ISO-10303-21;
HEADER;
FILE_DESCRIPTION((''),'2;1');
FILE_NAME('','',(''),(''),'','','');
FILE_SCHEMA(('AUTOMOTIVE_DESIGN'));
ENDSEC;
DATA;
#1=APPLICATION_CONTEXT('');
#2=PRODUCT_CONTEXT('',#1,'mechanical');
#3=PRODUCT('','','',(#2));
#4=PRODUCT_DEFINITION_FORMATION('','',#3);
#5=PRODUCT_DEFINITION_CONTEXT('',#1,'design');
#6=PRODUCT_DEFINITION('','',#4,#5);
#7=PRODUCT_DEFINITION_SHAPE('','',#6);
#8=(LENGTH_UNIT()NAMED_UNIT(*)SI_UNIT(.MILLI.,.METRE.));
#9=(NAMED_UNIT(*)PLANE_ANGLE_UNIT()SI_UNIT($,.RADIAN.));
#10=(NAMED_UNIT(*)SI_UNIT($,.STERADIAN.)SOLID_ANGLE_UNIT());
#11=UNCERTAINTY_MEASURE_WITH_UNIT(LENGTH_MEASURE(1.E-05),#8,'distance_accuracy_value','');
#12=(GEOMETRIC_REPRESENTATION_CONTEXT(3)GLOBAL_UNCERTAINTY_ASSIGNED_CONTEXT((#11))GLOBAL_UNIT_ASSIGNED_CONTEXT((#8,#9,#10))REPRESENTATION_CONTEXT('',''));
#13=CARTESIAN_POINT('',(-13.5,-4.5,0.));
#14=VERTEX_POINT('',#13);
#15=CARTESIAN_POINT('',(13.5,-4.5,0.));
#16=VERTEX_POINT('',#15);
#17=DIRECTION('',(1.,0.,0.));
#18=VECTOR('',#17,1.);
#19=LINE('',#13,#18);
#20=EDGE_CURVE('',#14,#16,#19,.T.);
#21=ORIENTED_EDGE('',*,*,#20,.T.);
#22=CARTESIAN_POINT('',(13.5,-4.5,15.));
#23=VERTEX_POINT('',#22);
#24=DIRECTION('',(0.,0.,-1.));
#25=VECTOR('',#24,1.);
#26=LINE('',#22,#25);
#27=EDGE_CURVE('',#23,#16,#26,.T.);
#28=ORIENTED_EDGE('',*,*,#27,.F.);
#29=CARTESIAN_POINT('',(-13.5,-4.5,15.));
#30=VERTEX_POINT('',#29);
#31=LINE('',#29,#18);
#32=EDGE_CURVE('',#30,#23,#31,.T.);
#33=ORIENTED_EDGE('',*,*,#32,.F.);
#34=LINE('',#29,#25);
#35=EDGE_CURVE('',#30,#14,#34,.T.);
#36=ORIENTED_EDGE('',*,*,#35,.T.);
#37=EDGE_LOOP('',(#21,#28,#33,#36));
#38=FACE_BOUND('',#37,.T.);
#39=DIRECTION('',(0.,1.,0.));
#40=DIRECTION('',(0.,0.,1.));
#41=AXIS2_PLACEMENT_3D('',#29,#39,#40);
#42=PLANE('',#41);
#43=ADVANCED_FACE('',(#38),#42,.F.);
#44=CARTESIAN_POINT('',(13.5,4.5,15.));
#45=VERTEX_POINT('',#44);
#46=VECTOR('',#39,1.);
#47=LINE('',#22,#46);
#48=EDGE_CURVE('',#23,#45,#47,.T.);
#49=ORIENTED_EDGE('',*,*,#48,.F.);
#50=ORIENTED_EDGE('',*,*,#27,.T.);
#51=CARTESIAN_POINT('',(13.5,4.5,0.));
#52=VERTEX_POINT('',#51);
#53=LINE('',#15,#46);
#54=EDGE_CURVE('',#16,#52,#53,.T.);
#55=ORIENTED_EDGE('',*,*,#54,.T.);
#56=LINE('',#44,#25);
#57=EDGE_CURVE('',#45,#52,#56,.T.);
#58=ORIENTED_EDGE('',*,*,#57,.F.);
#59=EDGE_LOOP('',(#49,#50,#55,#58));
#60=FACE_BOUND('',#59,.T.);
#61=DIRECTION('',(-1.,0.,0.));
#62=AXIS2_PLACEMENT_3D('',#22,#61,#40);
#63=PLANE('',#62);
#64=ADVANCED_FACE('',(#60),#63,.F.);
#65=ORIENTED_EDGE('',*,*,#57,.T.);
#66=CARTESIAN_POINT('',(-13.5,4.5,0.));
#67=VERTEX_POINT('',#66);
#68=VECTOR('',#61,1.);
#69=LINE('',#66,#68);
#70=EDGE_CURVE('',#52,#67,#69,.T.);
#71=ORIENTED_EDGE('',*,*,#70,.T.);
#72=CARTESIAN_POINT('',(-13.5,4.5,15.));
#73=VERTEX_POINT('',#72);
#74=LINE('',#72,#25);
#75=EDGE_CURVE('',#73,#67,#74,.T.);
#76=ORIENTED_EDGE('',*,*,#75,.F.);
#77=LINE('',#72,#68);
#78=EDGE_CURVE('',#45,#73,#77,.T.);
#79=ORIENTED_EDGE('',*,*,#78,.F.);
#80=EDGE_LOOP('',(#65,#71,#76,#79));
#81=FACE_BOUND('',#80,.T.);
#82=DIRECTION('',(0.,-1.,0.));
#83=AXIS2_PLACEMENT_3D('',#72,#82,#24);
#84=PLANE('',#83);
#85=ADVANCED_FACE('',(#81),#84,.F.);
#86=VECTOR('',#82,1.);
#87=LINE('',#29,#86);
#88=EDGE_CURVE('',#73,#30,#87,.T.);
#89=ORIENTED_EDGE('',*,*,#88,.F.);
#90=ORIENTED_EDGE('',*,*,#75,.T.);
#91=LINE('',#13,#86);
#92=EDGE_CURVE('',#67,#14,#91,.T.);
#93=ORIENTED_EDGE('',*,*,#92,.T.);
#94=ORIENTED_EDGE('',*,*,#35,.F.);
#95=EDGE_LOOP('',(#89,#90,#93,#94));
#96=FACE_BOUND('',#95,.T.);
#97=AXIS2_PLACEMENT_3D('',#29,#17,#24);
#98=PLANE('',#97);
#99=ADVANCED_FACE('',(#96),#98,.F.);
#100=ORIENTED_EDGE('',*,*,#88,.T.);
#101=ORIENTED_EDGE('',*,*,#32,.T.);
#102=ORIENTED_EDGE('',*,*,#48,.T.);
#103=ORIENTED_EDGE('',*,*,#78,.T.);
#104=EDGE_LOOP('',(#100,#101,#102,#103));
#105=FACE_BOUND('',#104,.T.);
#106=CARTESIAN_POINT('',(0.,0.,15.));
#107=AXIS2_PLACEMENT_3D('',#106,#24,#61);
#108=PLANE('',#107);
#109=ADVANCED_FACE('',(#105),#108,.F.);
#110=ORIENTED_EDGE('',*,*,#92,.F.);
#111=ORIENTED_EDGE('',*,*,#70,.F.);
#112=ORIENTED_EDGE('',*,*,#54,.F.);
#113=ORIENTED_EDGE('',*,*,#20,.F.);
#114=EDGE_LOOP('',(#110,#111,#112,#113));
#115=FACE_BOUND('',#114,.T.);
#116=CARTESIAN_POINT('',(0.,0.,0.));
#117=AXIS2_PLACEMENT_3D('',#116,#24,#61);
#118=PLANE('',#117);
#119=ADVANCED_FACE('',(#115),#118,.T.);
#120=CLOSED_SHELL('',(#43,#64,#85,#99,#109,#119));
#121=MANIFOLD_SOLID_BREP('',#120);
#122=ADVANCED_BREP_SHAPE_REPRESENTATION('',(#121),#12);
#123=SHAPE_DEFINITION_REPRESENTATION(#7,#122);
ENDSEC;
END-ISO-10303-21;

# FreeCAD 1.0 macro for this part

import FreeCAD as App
import Part
import Sketcher

V = App.Vector

doc = App.newDocument("Part")
params = doc.addObject("Spreadsheet::Sheet", "Params")
for row, (alias, value) in enumerate([
    ("sketch1_width", "27 mm"),
    ("sketch1_height", "9 mm"),
    ("pad1_length", "15 mm"),
], start=1):
    params.set(f"A{row}", alias)
    params.set(f"B{row}", "=" + value)
    params.setAlias(f"B{row}", alias)

body = doc.addObject("PartDesign::Body", "Body")

# Sketch on XY plane
sketch1 = body.newObject("Sketcher::SketchObject", "Sketch")
sketch1.AttachmentSupport = (doc.getObject("XY_Plane"), [""])
sketch1.MapMode = "FlatFace"
sketch1.addGeometry([
    Part.LineSegment(V(-14, 4, 0), V(-14, -4, 0)),
    Part.LineSegment(V(-14, -4, 0), V(14, -4, 0)),
    Part.LineSegment(V(14, -4, 0), V(14, 4, 0)),
    Part.LineSegment(V(14, 4, 0), V(-14, 4, 0)),
], False)
sketch1.addConstraint([
    Sketcher.Constraint("Coincident", 0, 2, 1, 1),
    Sketcher.Constraint("Coincident", 1, 2, 2, 1),
    Sketcher.Constraint("Coincident", 2, 2, 3, 1),
    Sketcher.Constraint("Coincident", 3, 2, 0, 1),
    Sketcher.Constraint("Vertical", 0),
    Sketcher.Constraint("Horizontal", 1),
    Sketcher.Constraint("Vertical", 2),
    Sketcher.Constraint("Horizontal", 3),
    Sketcher.Constraint("Symmetric", 0, 2, 2, 2, -1, 1),
    Sketcher.Constraint("DistanceX", 1, 1, 1, 2, 27.0),
    Sketcher.Constraint("DistanceY", 0, 2, 0, 1, 9.0),
])
sketch1.setExpression("Constraints[9]", "Params.sketch1_width")
sketch1.setExpression("Constraints[10]", "Params.sketch1_height")
pad1 = body.newObject("PartDesign::Pad", "Pad")
pad1.Profile = sketch1
pad1.setExpression("Length", "Params.pad1_length")

doc.recompute()
